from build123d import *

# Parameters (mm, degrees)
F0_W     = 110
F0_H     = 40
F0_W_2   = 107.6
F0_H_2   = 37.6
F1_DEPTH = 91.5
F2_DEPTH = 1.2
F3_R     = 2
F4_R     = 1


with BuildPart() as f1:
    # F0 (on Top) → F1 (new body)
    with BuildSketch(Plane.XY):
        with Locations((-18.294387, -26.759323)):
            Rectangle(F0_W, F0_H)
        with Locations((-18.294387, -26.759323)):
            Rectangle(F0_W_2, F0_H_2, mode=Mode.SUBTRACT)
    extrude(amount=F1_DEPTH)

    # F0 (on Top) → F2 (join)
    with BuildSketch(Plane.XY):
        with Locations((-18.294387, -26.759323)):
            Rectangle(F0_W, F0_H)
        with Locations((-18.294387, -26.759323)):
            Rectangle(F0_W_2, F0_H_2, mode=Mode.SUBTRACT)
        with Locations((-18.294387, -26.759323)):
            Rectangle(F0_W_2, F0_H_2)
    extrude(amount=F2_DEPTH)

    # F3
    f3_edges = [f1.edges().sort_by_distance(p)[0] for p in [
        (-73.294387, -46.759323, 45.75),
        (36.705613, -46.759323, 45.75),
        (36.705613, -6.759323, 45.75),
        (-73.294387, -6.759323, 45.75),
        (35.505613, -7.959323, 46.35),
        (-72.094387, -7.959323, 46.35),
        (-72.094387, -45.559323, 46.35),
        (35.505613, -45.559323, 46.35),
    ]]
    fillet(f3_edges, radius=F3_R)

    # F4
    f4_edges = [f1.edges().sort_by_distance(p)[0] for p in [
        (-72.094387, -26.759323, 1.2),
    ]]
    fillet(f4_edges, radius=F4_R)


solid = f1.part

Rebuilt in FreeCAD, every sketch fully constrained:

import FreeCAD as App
import Part
import Sketcher
Q = App.Units.Quantity


def edges_at(feature, points):
    """Names of the edges that pass closest to the given points."""
    edges = feature.Shape.Edges
    near = lambda p: min(range(len(edges)), key=lambda i: edges[i].distToShape(Part.Vertex(*p))[0])
    return sorted({f"Edge{near(p) + 1}" for p in points})


def add_polygon(sketch, points):
    """Adds a closed chain of lines whose ends are joined by coincident constraints."""
    first, n = sketch.GeometryCount, len(points)
    for a, b in zip(points, points[1:] + points[:1]):
        sketch.addGeometry(Part.LineSegment(App.Vector(*a, 0), App.Vector(*b, 0)), False)
    for i in range(n):
        sketch.addConstraint(Sketcher.Constraint("Coincident", first + i, 2, first + (i + 1) % n, 1))

doc = App.newDocument("Part")
body = doc.addObject("PartDesign::Body", "Body")

# Sketch on XY plane
sketch1 = body.newObject("Sketcher::SketchObject", "Sketch")
sketch1.AttachmentSupport = (doc.getObject("XY_Plane"), [""])
sketch1.MapMode = "FlatFace"
add_polygon(sketch1, [(-73, -7), (-73, -47), (37, -47), (37, -7)])  # lines 0-3
add_polygon(sketch1, [(36, -46), (-72, -46), (-72, -8), (36, -8)])  # lines 4-7
sketch1.addConstraint(Sketcher.Constraint("Vertical", 0))
sketch1.addConstraint(Sketcher.Constraint("Horizontal", 1))
sketch1.addConstraint(Sketcher.Constraint("Vertical", 2))
sketch1.addConstraint(Sketcher.Constraint("Horizontal", 3))
sketch1.addConstraint(Sketcher.Constraint("Horizontal", 4))
sketch1.addConstraint(Sketcher.Constraint("Vertical", 5))
sketch1.addConstraint(Sketcher.Constraint("Horizontal", 6))
sketch1.addConstraint(Sketcher.Constraint("Vertical", 7))
sketch1.addConstraint(Sketcher.Constraint("DistanceX", 1, 1, 1, 2, Q("110 mm")))
sketch1.addConstraint(Sketcher.Constraint("DistanceY", 0, 2, 0, 1, Q("40 mm")))
sketch1.addConstraint(Sketcher.Constraint("DistanceX", 4, 2, 4, 1, Q("107.6 mm")))
sketch1.addConstraint(Sketcher.Constraint("DistanceY", 5, 1, 5, 2, Q("37.6 mm")))
sketch1.addConstraint(Sketcher.Constraint("DistanceX", 0, 2, 4, 2, Q("1.2 mm")))
sketch1.addConstraint(Sketcher.Constraint("DistanceY", 0, 2, 4, 2, Q("1.2 mm")))
sketch1.addConstraint(Sketcher.Constraint("DistanceX", 0, 2, -1, 1, Q("73.294387 mm")))
sketch1.addConstraint(Sketcher.Constraint("DistanceY", 0, 2, -1, 1, Q("46.759323 mm")))
pad1 = body.newObject("PartDesign::Pad", "Pad")
pad1.Profile = sketch1
pad1.Length = 91.5

# Sketch on XY plane
sketch2 = body.newObject("Sketcher::SketchObject", "Sketch001")
sketch2.AttachmentSupport = (doc.getObject("XY_Plane"), [""])
sketch2.MapMode = "FlatFace"
add_polygon(sketch2, [(-73, -7), (-73, -47), (37, -47), (37, -7)])  # lines 0-3
sketch2.addConstraint(Sketcher.Constraint("Vertical", 0))
sketch2.addConstraint(Sketcher.Constraint("Horizontal", 1))
sketch2.addConstraint(Sketcher.Constraint("Vertical", 2))
sketch2.addConstraint(Sketcher.Constraint("Horizontal", 3))
sketch2.addConstraint(Sketcher.Constraint("DistanceX", 1, 1, 1, 2, Q("110 mm")))
sketch2.addConstraint(Sketcher.Constraint("DistanceY", 0, 2, 0, 1, Q("40 mm")))
sketch2.addConstraint(Sketcher.Constraint("DistanceX", 0, 2, -1, 1, Q("73.294387 mm")))
sketch2.addConstraint(Sketcher.Constraint("DistanceY", 0, 2, -1, 1, Q("46.759323 mm")))
pad2 = body.newObject("PartDesign::Pad", "Pad001")
pad2.Profile = sketch2
pad2.Length = 1.2
doc.recompute()

fillet = body.newObject("PartDesign::Fillet", "Fillet")
fillet.Base = (pad2, edges_at(pad2, [
    (-73.294, -46.759, 45.75),
    (36.706, -46.759, 45.75),
    (36.706, -6.759, 45.75),
    (-73.294, -6.759, 45.75),
    (35.506, -7.959, 46.35),
    (-72.094, -7.959, 46.35),
    (-72.094, -45.559, 46.35),
    (35.506, -45.559, 46.35),
]))
fillet.Radius = 2
doc.recompute()

fillet2 = body.newObject("PartDesign::Fillet", "Fillet001")
fillet2.Base = (fillet, edges_at(fillet, [(-72.094, -26.759, 1.2)]))
fillet2.Radius = 1

doc.recompute()
